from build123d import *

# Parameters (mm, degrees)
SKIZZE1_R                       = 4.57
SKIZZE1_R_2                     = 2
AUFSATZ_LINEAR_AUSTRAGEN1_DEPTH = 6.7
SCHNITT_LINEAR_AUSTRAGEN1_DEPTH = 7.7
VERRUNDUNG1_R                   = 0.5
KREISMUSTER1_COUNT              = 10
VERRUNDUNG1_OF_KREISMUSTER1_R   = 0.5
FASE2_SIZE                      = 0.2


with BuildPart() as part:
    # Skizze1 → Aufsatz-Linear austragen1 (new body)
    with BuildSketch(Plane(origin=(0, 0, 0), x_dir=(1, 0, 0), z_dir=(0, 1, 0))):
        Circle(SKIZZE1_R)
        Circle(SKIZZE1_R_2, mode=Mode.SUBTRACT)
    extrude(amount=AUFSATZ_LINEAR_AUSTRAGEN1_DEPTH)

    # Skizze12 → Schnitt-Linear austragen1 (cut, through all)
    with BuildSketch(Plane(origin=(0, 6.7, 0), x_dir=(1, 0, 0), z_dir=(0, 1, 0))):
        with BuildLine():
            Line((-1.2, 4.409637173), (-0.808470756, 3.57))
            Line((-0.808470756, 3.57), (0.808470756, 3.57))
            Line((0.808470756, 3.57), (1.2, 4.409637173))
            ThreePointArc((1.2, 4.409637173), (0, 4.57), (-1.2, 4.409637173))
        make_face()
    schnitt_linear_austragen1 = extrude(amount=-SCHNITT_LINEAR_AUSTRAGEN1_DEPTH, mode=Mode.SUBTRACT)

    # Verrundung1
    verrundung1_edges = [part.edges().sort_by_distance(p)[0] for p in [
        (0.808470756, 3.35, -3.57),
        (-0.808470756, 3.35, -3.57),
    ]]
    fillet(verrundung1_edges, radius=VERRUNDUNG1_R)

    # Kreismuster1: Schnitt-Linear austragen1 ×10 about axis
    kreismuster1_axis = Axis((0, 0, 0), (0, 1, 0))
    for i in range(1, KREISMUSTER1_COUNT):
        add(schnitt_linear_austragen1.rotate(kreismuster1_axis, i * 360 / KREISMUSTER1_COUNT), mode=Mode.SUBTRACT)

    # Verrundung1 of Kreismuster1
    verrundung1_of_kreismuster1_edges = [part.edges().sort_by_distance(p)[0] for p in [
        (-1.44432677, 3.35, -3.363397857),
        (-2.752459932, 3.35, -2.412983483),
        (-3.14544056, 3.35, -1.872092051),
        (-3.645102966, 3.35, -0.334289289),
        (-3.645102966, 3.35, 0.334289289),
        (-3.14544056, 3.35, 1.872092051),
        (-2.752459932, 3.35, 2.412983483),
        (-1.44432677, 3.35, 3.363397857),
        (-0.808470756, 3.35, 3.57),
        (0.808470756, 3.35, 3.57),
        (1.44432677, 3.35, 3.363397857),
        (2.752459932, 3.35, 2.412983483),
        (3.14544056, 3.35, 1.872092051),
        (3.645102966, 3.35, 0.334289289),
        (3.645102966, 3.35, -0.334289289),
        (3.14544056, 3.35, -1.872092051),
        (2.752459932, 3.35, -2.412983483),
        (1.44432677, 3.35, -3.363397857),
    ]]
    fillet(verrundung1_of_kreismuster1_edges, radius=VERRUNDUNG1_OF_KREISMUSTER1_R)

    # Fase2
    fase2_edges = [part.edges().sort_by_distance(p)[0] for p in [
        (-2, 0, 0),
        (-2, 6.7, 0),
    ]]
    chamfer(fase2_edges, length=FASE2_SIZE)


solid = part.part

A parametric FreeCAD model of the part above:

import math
import FreeCAD as App
import Part
import Sketcher
from FreeCAD import Vector
Q = App.Units.Quantity


def edges_at(feature, points):
    """Names of the edges that pass closest to the given points."""
    edges = feature.Shape.Edges
    near = lambda p: min(range(len(edges)), key=lambda i: edges[i].distToShape(Part.Vertex(*p))[0])
    return sorted({f"Edge{near(p) + 1}" for p in points})

doc = App.newDocument("Part")
params = doc.addObject("Spreadsheet::Sheet", "Params")
for row, (alias, value) in enumerate([
    ("sketch1_diameter", "4 mm"),
    ("sketch1_diameter2", "9.14 mm"),
    ("pad1_length", "6.7 mm"),
    ("sketch2_radius", "4.57 mm"),
    ("fillet_radius", "0.5 mm"),
    ("fillet2_radius", "0.5 mm"),
    ("chamfer_size", "0.2 mm"),
], start=1):
    params.set(f"A{row}", alias)
    params.set(f"B{row}", "=" + value)
    params.setAlias(f"B{row}", alias)

body = doc.addObject("PartDesign::Body", "Body")

sketch1 = body.newObject("Sketcher::SketchObject", "Sketch")
sketch1.AttachmentSupport = (doc.getObject("XZ_Plane"), [""])
sketch1.MapMode = "FlatFace"
sketch1.addGeometry([
    Part.Circle(Vector(0, 0, 0), Vector(0, 0, 1), 4.6),
    Part.Circle(Vector(0, 0, 0), Vector(0, 0, 1), 2),
], False)
sketch1.addConstraint([
    Sketcher.Constraint("Coincident", 0, 3, -1, 1),
    Sketcher.Constraint("Coincident", 1, 3, -1, 1),
    Sketcher.Constraint("Diameter", 1, Q("4 mm")),
    Sketcher.Constraint("Diameter", 0, Q("9.14 mm")),
])
sketch1.setExpression("Constraints[2]", "Params.sketch1_diameter")
sketch1.setExpression("Constraints[3]", "Params.sketch1_diameter2")
pad1 = body.newObject("PartDesign::Pad", "Pad")
pad1.Profile = sketch1
pad1.setExpression("Length", "Params.pad1_length")
pad1.Reversed = True

sketch2 = body.newObject("Sketcher::SketchObject", "Sketch001")
sketch2.AttachmentSupport = (doc.getObject("XZ_Plane"), [""])
sketch2.MapMode = "FlatFace"
sketch2.AttachmentOffset = App.Placement(Vector(0, 0, -6.7), App.Rotation())
sketch2.addGeometry([
    Part.LineSegment(Vector(-1.2, -4.4, 0), Vector(-0.8, -3.6, 0)),
    Part.LineSegment(Vector(-0.8, -3.6, 0), Vector(0.8, -3.6, 0)),
    Part.LineSegment(Vector(0.8, -3.6, 0), Vector(1.2, -4.4, 0)),
    Part.ArcOfCircle(Part.Circle(Vector(0, 0, 0), Vector(0, 0, 1), 4.6), math.radians(-105), math.radians(-75)),
], False)
sketch2.addConstraint([
    Sketcher.Constraint("Coincident", 0, 2, 1, 1),
    Sketcher.Constraint("Coincident", 1, 2, 2, 1),
    Sketcher.Constraint("Coincident", 2, 2, 3, 2),
    Sketcher.Constraint("Coincident", 3, 1, 0, 1),
    Sketcher.Constraint("Horizontal", 1),
    Sketcher.Constraint("Coincident", 3, 3, -1, 1),
    Sketcher.Constraint("Horizontal", 2, 2, 3, 1),
    Sketcher.Constraint("Equal", 0, 2),
    Sketcher.Constraint("Angle", 0, Q("65 deg")),
    Sketcher.Constraint("Radius", 3, Q("4.57 mm")),
    Sketcher.Constraint("DistanceX", -1, 1, 2, 2, Q("1.2 mm")),
    Sketcher.Constraint("DistanceY", 0, 2, -1, 1, Q("3.57 mm")),
])
sketch2.setExpression("Constraints[9]", "Params.sketch2_radius")
pocket1 = body.newObject("PartDesign::Pocket", "Pocket")
pocket1.Profile = sketch2
pocket1.Type = "ThroughAll"
pocket1.Reversed = True
doc.recompute()

fillet = body.newObject("PartDesign::Fillet", "Fillet")
fillet.Base = (pocket1, edges_at(pocket1, [(0.808, 3.35, -3.57), (-0.808, 3.35, -3.57)]))
fillet.setExpression("Radius", "Params.fillet_radius")
doc.recompute()

polarpattern = body.newObject("PartDesign::PolarPattern", "PolarPattern")
polarpattern.Originals = [pocket1]
polarpattern.Axis = (doc.getObject("Y_Axis"), [""])
polarpattern.Angle = 360
polarpattern.Occurrences = 10
body.Tip = polarpattern
doc.recompute()

fillet2 = body.newObject("PartDesign::Fillet", "Fillet001")
fillet2.Base = (polarpattern, edges_at(polarpattern, [
    (-1.444, 3.35, -3.363),
    (-2.752, 3.35, -2.413),
    (-3.145, 3.35, -1.872),
    (-3.645, 3.35, -0.334),
    (-3.645, 3.35, 0.334),
    (-3.145, 3.35, 1.872),
    (-2.752, 3.35, 2.413),
    (-1.444, 3.35, 3.363),
    (-0.808, 3.35, 3.57),
    (0.808, 3.35, 3.57),
    (1.444, 3.35, 3.363),
    (2.752, 3.35, 2.413),
    (3.145, 3.35, 1.872),
    (3.645, 3.35, 0.334),
    (3.645, 3.35, -0.334),
    (3.145, 3.35, -1.872),
    (2.752, 3.35, -2.413),
    (1.444, 3.35, -3.363),
]))
fillet2.setExpression("Radius", "Params.fillet2_radius")
doc.recompute()

chamfer = body.newObject("PartDesign::Chamfer", "Chamfer")
chamfer.Base = (fillet2, edges_at(fillet2, [(-2, 0, 0), (-2, 6.7, 0)]))
chamfer.setExpression("Size", "Params.chamfer_size")

doc.recompute()
